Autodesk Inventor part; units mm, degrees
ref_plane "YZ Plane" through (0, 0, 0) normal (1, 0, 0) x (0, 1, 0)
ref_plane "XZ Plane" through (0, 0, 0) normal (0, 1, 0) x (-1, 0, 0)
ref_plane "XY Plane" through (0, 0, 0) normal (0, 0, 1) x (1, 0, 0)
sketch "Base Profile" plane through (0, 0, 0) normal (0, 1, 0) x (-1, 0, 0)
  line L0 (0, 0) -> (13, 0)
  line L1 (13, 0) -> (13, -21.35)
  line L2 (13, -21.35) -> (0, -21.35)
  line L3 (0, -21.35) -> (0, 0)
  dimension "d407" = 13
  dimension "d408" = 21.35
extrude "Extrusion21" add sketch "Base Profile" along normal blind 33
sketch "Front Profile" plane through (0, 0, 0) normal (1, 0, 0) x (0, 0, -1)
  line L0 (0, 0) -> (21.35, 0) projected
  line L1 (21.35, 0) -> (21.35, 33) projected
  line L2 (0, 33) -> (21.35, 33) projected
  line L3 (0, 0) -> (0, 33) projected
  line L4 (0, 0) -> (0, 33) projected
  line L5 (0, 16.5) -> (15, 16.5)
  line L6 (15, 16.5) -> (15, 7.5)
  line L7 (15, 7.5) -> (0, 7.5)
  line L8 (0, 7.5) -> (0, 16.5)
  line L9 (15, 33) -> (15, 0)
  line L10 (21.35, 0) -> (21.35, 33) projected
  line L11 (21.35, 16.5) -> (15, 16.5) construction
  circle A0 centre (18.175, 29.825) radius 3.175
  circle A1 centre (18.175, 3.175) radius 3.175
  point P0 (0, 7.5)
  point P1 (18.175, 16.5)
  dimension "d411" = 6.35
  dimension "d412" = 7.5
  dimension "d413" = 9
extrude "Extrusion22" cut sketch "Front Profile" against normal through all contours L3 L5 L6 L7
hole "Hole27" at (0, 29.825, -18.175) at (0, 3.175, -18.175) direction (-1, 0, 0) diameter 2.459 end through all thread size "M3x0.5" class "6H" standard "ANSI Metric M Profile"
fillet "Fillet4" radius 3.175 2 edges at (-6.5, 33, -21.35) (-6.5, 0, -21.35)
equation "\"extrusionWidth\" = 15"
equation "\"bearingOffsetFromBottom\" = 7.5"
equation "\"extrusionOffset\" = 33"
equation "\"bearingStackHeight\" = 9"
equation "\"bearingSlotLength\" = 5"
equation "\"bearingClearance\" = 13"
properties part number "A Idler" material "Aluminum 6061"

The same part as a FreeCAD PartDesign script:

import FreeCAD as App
import Part
import Sketcher


def edges_at(feature, points):
    """Names of the edges that pass closest to the given points."""
    edges = feature.Shape.Edges
    near = lambda p: min(range(len(edges)), key=lambda i: edges[i].distToShape(Part.Vertex(*p))[0])
    return sorted({f"Edge{near(p) + 1}" for p in points})

doc = App.newDocument("Part")
body = doc.addObject("PartDesign::Body", "Body")

sketch1 = body.newObject("Sketcher::SketchObject", "Sketch")
sketch1.AttachmentSupport = (doc.getObject("XZ_Plane"), [""])
sketch1.MapMode = "FlatFace"
sketch1.addGeometry(Part.LineSegment(App.Vector(-13, 0, 0), App.Vector(0, 0, 0)), False)
sketch1.addGeometry(Part.LineSegment(App.Vector(0, 0, 0), App.Vector(0, -21, 0)), False)
sketch1.addGeometry(Part.LineSegment(App.Vector(0, -21, 0), App.Vector(-13, -21, 0)), False)
sketch1.addGeometry(Part.LineSegment(App.Vector(-13, -21, 0), App.Vector(-13, 0, 0)), False)
sketch1.addConstraint(Sketcher.Constraint("Coincident", 0, 2, 1, 1))
sketch1.addConstraint(Sketcher.Constraint("Coincident", 1, 2, 2, 1))
sketch1.addConstraint(Sketcher.Constraint("Coincident", 2, 2, 3, 1))
sketch1.addConstraint(Sketcher.Constraint("Coincident", 3, 2, 0, 1))
sketch1.addConstraint(Sketcher.Constraint("Horizontal", 0))
sketch1.addConstraint(Sketcher.Constraint("Vertical", 1))
sketch1.addConstraint(Sketcher.Constraint("Horizontal", 2))
sketch1.addConstraint(Sketcher.Constraint("Vertical", 3))
sketch1.addConstraint(Sketcher.Constraint("Coincident", 0, 2, -1, 1))
sketch1.addConstraint(Sketcher.Constraint("DistanceX", 0, 1, 0, 2, 13.0))
sketch1.addConstraint(Sketcher.Constraint("DistanceY", 1, 2, 1, 1, 21.35))
pad1 = body.newObject("PartDesign::Pad", "Pad")
pad1.Profile = sketch1
pad1.Length = 33
pad1.Reversed = True

sketch2 = body.newObject("Sketcher::SketchObject", "Sketch001")
sketch2.AttachmentSupport = (doc.getObject("YZ_Plane"), [""])
sketch2.MapMode = "FlatFace"
sketch2.addGeometry(Part.LineSegment(App.Vector(16, 0, 0), App.Vector(8, 0, 0)), False)
sketch2.addGeometry(Part.LineSegment(App.Vector(8, 0, 0), App.Vector(8, -15, 0)), False)
sketch2.addGeometry(Part.LineSegment(App.Vector(8, -15, 0), App.Vector(16, -15, 0)), False)
sketch2.addGeometry(Part.LineSegment(App.Vector(16, -15, 0), App.Vector(16, 0, 0)), False)
sketch2.addConstraint(Sketcher.Constraint("Coincident", 0, 2, 1, 1))
sketch2.addConstraint(Sketcher.Constraint("Coincident", 1, 2, 2, 1))
sketch2.addConstraint(Sketcher.Constraint("Coincident", 2, 2, 3, 1))
sketch2.addConstraint(Sketcher.Constraint("Coincident", 3, 2, 0, 1))
sketch2.addConstraint(Sketcher.Constraint("Horizontal", 0))
sketch2.addConstraint(Sketcher.Constraint("Vertical", 1))
sketch2.addConstraint(Sketcher.Constraint("Horizontal", 2))
sketch2.addConstraint(Sketcher.Constraint("Vertical", 3))
sketch2.addConstraint(Sketcher.Constraint("PointOnObject", 0, 2, -1))
sketch2.addConstraint(Sketcher.Constraint("DistanceX", 0, 2, 0, 1, 9.0))
sketch2.addConstraint(Sketcher.Constraint("DistanceX", -1, 1, 0, 2, 7.5))
sketch2.addConstraint(Sketcher.Constraint("DistanceY", 1, 2, 1, 1, 15.0))
pocket1 = body.newObject("PartDesign::Pocket", "Pocket")
pocket1.Profile = sketch2
pocket1.Type = "ThroughAll"

sketch3 = body.newObject("Sketcher::SketchObject", "Sketch002")
sketch3.AttachmentSupport = (doc.getObject("YZ_Plane"), [""])
sketch3.MapMode = "FlatFace"
sketch3.addGeometry(Part.Circle(App.Vector(29.8, -18.2, 0), App.Vector(0, 0, 1), 1.2), False)
sketch3.addGeometry(Part.Circle(App.Vector(3.2, -18.2, 0), App.Vector(0, 0, 1), 1.2), False)
sketch3.addConstraint(Sketcher.Constraint("Equal", 0, 1))
sketch3.addConstraint(Sketcher.Constraint("Horizontal", 0, 3, 1, 3))
sketch3.addConstraint(Sketcher.Constraint("Diameter", 0, 2.459))
sketch3.addConstraint(Sketcher.Constraint("DistanceX", 1, 3, 0, 3, 26.65))
sketch3.addConstraint(Sketcher.Constraint("DistanceX", -1, 1, 0, 3, 29.825))
sketch3.addConstraint(Sketcher.Constraint("DistanceY", 0, 3, -1, 1, 18.175))
doc.recompute()
hole = body.newObject("PartDesign::Hole", "Hole")
hole.Profile = sketch3
hole.ThreadType = "None"
hole.Diameter = 2.459
hole.DepthType = "ThroughAll"
doc.recompute()

fillet = body.newObject("PartDesign::Fillet", "Fillet")
fillet.Base = (hole, edges_at(hole, [(-6.5, 33, -21.35), (-6.5, 0, -21.35)]))
fillet.Radius = 3.175

doc.recompute()
